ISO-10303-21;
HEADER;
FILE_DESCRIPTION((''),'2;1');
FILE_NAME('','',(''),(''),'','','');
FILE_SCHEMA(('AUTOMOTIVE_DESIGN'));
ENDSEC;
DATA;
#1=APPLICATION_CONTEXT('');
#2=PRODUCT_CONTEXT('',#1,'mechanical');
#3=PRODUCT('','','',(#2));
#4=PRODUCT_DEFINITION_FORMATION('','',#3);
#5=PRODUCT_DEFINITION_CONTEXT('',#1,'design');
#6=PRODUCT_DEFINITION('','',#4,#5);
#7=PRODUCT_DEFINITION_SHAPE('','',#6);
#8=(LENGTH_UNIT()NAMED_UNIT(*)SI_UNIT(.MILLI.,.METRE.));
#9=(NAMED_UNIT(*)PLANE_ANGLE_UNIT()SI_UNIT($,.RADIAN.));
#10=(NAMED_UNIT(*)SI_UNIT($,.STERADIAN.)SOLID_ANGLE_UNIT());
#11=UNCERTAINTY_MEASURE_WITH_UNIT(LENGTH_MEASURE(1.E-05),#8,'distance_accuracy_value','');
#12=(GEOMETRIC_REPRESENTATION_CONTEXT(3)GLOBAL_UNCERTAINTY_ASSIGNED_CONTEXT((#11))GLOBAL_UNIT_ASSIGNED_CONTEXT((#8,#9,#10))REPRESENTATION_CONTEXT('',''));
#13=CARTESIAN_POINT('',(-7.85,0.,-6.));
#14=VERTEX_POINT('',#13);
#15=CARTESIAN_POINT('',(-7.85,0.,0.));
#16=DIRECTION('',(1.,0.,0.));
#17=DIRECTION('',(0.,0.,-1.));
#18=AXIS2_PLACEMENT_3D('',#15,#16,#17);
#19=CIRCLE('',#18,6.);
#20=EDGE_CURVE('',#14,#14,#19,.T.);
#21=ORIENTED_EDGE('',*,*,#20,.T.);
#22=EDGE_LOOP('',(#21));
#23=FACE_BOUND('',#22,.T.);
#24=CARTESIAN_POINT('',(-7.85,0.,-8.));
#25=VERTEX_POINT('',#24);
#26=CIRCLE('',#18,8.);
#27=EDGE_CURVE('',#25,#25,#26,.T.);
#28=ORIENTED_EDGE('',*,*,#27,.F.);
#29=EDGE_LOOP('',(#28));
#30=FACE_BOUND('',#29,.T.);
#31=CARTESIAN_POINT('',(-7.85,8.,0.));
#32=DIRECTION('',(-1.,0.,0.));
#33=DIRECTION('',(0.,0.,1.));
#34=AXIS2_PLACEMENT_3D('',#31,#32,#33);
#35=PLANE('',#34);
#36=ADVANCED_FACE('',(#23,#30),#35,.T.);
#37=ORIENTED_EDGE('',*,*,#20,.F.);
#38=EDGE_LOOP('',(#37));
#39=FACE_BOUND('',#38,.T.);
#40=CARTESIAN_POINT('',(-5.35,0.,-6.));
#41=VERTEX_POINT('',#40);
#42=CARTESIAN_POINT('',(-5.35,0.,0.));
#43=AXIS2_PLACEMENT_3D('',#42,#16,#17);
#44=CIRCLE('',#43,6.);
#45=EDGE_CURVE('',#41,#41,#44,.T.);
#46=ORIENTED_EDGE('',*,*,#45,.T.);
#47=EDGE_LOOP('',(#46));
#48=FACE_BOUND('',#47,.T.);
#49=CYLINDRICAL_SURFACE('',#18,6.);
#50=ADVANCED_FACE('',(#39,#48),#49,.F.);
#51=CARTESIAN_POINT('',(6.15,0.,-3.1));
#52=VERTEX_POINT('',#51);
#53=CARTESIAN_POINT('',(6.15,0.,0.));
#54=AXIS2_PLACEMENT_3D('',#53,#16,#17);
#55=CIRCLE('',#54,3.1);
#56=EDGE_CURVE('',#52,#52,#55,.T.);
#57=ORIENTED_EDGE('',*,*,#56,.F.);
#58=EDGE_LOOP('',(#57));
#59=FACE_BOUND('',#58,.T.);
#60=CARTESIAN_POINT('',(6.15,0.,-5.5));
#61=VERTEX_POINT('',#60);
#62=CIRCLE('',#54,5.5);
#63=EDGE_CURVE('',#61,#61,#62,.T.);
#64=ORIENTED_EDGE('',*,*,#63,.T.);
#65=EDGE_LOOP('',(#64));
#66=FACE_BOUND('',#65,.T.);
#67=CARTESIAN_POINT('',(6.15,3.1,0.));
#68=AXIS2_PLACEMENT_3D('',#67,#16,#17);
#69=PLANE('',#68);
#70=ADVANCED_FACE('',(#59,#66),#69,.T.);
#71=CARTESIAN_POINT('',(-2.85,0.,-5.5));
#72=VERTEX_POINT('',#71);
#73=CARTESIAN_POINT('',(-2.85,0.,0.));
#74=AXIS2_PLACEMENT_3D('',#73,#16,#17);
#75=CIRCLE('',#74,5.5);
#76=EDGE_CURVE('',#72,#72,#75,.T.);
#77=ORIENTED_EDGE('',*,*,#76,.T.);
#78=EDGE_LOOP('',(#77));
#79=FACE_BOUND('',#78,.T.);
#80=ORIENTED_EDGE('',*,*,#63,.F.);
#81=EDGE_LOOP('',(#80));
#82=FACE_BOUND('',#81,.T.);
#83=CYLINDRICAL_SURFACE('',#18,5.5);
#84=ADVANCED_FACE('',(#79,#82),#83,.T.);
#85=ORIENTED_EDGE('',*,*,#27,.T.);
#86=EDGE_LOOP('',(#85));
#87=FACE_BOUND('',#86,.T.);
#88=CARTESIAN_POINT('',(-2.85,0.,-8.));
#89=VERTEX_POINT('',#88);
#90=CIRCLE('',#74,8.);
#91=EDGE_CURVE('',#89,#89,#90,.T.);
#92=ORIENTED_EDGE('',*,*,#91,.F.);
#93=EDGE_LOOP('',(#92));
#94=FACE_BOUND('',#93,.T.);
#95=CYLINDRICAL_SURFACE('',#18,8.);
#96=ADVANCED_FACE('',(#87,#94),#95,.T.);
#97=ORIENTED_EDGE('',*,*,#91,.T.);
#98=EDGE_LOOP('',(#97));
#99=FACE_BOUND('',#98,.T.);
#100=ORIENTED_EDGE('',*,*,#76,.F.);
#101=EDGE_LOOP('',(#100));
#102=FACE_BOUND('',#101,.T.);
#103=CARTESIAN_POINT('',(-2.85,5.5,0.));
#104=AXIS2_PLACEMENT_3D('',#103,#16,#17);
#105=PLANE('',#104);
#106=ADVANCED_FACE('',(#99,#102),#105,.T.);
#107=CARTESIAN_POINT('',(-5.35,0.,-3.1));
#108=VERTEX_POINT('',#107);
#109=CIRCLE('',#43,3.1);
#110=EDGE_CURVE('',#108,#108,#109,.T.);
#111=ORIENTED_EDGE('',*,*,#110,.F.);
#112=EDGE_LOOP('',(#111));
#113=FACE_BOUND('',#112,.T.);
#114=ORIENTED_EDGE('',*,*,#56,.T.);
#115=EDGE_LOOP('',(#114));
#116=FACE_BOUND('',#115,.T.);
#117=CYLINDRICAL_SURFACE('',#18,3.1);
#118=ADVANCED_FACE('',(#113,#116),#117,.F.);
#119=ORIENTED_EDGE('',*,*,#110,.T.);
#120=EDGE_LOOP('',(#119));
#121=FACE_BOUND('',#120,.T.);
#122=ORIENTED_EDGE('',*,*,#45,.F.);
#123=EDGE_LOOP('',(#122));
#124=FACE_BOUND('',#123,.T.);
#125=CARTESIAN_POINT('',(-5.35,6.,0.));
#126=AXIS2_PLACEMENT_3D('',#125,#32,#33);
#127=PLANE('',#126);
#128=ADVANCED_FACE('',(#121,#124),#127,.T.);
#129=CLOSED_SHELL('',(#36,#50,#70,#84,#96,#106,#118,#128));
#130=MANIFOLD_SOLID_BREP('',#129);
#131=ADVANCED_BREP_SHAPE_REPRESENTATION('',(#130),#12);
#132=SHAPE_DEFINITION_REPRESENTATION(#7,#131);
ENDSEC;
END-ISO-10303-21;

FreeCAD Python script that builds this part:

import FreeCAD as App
import Part
import Sketcher
from FreeCAD import Vector


def add_polygon(sketch, points):
    """Adds a closed chain of lines whose ends are joined by coincident constraints."""
    first, n = sketch.GeometryCount, len(points)
    for a, b in zip(points, points[1:] + points[:1]):
        sketch.addGeometry(Part.LineSegment(App.Vector(*a, 0), App.Vector(*b, 0)), False)
    for i in range(n):
        sketch.addConstraint(Sketcher.Constraint("Coincident", first + i, 2, first + (i + 1) % n, 1))

doc = App.newDocument("Part")
body = doc.addObject("PartDesign::Body", "Body")

sketch1 = body.newObject("Sketcher::SketchObject", "Sketch")
sketch1.AttachmentSupport = (doc.getObject("XY_Plane"), [""])
sketch1.MapMode = "FlatFace"
add_polygon(sketch1, [(-2.9, 5.5), (-2.9, 8), (-7.8, 8), (-7.8, 6), (-5.3, 6), (-5.3, 3.1), (6.2, 3.1), (6.2, 5.5)])
sketch1.addConstraint(Sketcher.Constraint("Vertical", 0))
sketch1.addConstraint(Sketcher.Constraint("Horizontal", 1))
sketch1.addConstraint(Sketcher.Constraint("Vertical", 2))
sketch1.addConstraint(Sketcher.Constraint("Horizontal", 3))
sketch1.addConstraint(Sketcher.Constraint("Vertical", 4))
sketch1.addConstraint(Sketcher.Constraint("Horizontal", 5))
sketch1.addConstraint(Sketcher.Constraint("Vertical", 6))
sketch1.addConstraint(Sketcher.Constraint("Horizontal", 7))
sketch1.addConstraint(Sketcher.Constraint("Equal", 3, 0))
sketch1.addConstraint(Sketcher.Constraint("DistanceX", 1, 2, 1, 1, 5.0))
sketch1.addConstraint(Sketcher.Constraint("DistanceX", 7, 2, 7, 1, 9.0))
sketch1.addConstraint(Sketcher.Constraint("DistanceY", 2, 2, 2, 1, 2.0))
sketch1.addConstraint(Sketcher.Constraint("DistanceX", 3, 1, 3, 2, 2.5))
sketch1.addConstraint(Sketcher.Constraint("DistanceY", 4, 2, 4, 1, 2.9))
sketch1.addConstraint(Sketcher.Constraint("DistanceY", -1, 1, 0, 2, 8.0))
sketch1.addConstraint(Sketcher.Constraint("DistanceX", 0, 2, -1, 1, 2.85))
revolution = body.newObject("PartDesign::Revolution", "Revolution")
revolution.Profile = sketch1
revolution.ReferenceAxis = (sketch1, ["H_Axis"])
revolution.Angle = 360

doc.recompute()
